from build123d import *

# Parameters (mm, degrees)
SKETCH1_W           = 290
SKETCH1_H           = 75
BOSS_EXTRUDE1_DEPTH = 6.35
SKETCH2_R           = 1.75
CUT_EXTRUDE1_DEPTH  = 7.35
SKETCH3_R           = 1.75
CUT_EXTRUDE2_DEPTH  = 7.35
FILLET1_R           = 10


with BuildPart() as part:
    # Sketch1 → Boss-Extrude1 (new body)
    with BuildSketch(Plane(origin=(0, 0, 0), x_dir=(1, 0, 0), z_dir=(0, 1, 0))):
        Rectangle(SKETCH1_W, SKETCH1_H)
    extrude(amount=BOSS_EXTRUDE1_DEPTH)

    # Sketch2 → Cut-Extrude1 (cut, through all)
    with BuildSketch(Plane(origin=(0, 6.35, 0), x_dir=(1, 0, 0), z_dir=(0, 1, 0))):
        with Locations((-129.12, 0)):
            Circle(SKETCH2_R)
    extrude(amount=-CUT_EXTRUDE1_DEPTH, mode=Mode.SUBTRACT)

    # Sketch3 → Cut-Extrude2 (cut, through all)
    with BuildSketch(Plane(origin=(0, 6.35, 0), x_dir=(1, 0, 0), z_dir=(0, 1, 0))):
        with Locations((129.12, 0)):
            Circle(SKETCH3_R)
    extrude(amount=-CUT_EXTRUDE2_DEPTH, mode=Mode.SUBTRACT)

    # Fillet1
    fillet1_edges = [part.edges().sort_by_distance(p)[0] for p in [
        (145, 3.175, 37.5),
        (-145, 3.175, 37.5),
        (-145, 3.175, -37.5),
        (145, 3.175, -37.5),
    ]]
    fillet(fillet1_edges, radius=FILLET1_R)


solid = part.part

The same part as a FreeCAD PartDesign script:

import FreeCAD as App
import Part
import Sketcher
Q = App.Units.Quantity


def edges_at(feature, points):
    """Names of the edges that pass closest to the given points."""
    edges = feature.Shape.Edges
    near = lambda p: min(range(len(edges)), key=lambda i: edges[i].distToShape(Part.Vertex(*p))[0])
    return sorted({f"Edge{near(p) + 1}" for p in points})

doc = App.newDocument("Part")
params = doc.addObject("Spreadsheet::Sheet", "Params")
for row, (alias, value) in enumerate([
    ("sketch1_width", "290 mm"),
    ("sketch1_height", "75 mm"),
    ("pad1_length", "6.35 mm"),
    ("sketch2_diameter", "3.5 mm"),
    ("sketch3_diameter", "3.5 mm"),
    ("fillet_radius", "10 mm"),
], start=1):
    params.set(f"A{row}", alias)
    params.set(f"B{row}", "=" + value)
    params.setAlias(f"B{row}", alias)

body = doc.addObject("PartDesign::Body", "Body")

# Sketch on XZ plane
sketch1 = body.newObject("Sketcher::SketchObject", "Sketch")
sketch1.AttachmentSupport = (doc.getObject("XZ_Plane"), [""])
sketch1.MapMode = "FlatFace"
sketch1.addGeometry([
    Part.LineSegment(App.Vector(-145, -38, 0), App.Vector(-145, 38, 0)),
    Part.LineSegment(App.Vector(-145, 38, 0), App.Vector(145, 38, 0)),
    Part.LineSegment(App.Vector(145, 38, 0), App.Vector(145, -38, 0)),
    Part.LineSegment(App.Vector(145, -38, 0), App.Vector(-145, -38, 0)),
], False)
sketch1.addConstraint([
    Sketcher.Constraint("Coincident", 0, 2, 1, 1),
    Sketcher.Constraint("Coincident", 1, 2, 2, 1),
    Sketcher.Constraint("Coincident", 2, 2, 3, 1),
    Sketcher.Constraint("Coincident", 3, 2, 0, 1),
    Sketcher.Constraint("Vertical", 0),
    Sketcher.Constraint("Horizontal", 1),
    Sketcher.Constraint("Vertical", 2),
    Sketcher.Constraint("Horizontal", 3),
    Sketcher.Constraint("Symmetric", 0, 2, 2, 2, -1, 1),
    Sketcher.Constraint("DistanceX", 1, 1, 1, 2, Q("290 mm")),
    Sketcher.Constraint("DistanceY", 0, 1, 0, 2, Q("75 mm")),
])
sketch1.setExpression("Constraints[9]", "Params.sketch1_width")
sketch1.setExpression("Constraints[10]", "Params.sketch1_height")
pad1 = body.newObject("PartDesign::Pad", "Pad")
pad1.Profile = sketch1
pad1.setExpression("Length", "Params.pad1_length")
pad1.Reversed = True

# Sketch on XZ plane
sketch2 = body.newObject("Sketcher::SketchObject", "Sketch001")
sketch2.AttachmentSupport = (doc.getObject("XZ_Plane"), [""])
sketch2.MapMode = "FlatFace"
sketch2.AttachmentOffset = App.Placement(App.Vector(0, 0, -6.35), App.Rotation())
sketch2.addGeometry(Part.Circle(App.Vector(-129.1, 0, 0), App.Vector(0, 0, 1), 1.8), False)
sketch2.addConstraint([
    Sketcher.Constraint("PointOnObject", 0, 3, -1),
    Sketcher.Constraint("Diameter", 0, Q("3.5 mm")),
    Sketcher.Constraint("DistanceX", 0, 3, -1, 1, Q("129.12 mm")),
])
sketch2.setExpression("Constraints[1]", "Params.sketch2_diameter")
pocket1 = body.newObject("PartDesign::Pocket", "Pocket")
pocket1.Profile = sketch2
pocket1.Type = "ThroughAll"
pocket1.Reversed = True

# Sketch on XZ plane
sketch3 = body.newObject("Sketcher::SketchObject", "Sketch002")
sketch3.AttachmentSupport = (doc.getObject("XZ_Plane"), [""])
sketch3.MapMode = "FlatFace"
sketch3.AttachmentOffset = App.Placement(App.Vector(0, 0, -6.35), App.Rotation())
sketch3.addGeometry(Part.Circle(App.Vector(129.1, 0, 0), App.Vector(0, 0, 1), 1.8), False)
sketch3.addConstraint([
    Sketcher.Constraint("PointOnObject", 0, 3, -1),
    Sketcher.Constraint("Diameter", 0, Q("3.5 mm")),
    Sketcher.Constraint("DistanceX", -1, 1, 0, 3, Q("129.12 mm")),
])
sketch3.setExpression("Constraints[1]", "Params.sketch3_diameter")
pocket2 = body.newObject("PartDesign::Pocket", "Pocket001")
pocket2.Profile = sketch3
pocket2.Type = "ThroughAll"
pocket2.Reversed = True
doc.recompute()

fillet = body.newObject("PartDesign::Fillet", "Fillet")
fillet.Base = (pocket2, edges_at(pocket2, [
    (145, 3.175, 37.5),
    (-145, 3.175, 37.5),
    (-145, 3.175, -37.5),
    (145, 3.175, -37.5),
]))
fillet.setExpression("Radius", "Params.fillet_radius")

doc.recompute()
